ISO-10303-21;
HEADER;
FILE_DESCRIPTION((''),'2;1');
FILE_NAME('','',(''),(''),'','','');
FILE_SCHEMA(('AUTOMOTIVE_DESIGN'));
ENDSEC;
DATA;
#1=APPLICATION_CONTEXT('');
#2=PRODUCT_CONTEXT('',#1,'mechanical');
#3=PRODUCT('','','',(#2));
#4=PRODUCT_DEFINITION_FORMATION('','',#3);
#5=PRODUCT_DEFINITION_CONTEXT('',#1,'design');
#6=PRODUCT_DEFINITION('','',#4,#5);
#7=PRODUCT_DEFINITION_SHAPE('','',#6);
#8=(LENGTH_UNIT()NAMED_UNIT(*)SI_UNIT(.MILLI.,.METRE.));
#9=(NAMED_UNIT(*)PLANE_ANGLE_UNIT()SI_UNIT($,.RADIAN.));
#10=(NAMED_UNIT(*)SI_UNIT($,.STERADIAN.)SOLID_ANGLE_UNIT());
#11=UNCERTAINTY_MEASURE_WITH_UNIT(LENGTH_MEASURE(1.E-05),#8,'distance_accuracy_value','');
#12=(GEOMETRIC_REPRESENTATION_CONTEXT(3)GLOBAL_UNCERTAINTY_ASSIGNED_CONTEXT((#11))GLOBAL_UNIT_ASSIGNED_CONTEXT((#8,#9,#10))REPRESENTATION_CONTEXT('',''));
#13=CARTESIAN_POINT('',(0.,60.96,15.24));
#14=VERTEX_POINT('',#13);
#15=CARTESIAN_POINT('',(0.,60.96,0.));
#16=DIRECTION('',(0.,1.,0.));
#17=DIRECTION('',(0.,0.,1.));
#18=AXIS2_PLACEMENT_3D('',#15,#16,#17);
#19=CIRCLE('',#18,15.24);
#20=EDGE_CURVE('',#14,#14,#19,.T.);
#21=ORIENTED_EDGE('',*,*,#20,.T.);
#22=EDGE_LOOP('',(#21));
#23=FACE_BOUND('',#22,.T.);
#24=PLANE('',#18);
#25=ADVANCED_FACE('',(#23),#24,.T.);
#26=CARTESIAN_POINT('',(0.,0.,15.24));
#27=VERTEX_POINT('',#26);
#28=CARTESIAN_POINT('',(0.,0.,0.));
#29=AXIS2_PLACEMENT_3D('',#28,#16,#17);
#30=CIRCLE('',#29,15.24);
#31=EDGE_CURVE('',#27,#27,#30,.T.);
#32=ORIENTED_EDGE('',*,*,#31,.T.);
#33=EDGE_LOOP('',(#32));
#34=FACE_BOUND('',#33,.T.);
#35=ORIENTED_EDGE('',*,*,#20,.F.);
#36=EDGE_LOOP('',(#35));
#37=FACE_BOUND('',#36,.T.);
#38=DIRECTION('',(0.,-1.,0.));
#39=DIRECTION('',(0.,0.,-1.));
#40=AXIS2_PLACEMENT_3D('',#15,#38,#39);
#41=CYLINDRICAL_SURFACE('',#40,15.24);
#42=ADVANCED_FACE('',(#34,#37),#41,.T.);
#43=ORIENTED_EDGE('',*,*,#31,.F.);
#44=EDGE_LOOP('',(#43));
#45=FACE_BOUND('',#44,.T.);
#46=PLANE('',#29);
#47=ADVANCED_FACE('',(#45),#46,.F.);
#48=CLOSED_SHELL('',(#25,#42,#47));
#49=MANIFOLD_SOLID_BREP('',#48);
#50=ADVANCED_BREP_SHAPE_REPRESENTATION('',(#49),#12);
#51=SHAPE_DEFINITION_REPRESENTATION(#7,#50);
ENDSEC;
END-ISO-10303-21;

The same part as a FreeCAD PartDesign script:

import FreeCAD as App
import Part
import Sketcher
Q = App.Units.Quantity

doc = App.newDocument("Part")
body = doc.addObject("PartDesign::Body", "Body")

# Sketch on XZ plane
sketch1 = doc.addObject("Sketcher::SketchObject", "Sketch")
body.addObject(sketch1)
sketch1.AttachmentSupport = (doc.XZ_Plane, [""])
sketch1.MapMode = "FlatFace"
sketch1.addGeometry(Part.Circle(App.Vector(0, 0, 0), App.Vector(0, 0, 1), 15.24), False)
sketch1.addConstraint([
    Sketcher.Constraint("Coincident", 0, 3, -1, 1),
    Sketcher.Constraint("Diameter", 0, Q("1.2 in")),
])
pad1 = doc.addObject("PartDesign::Pad", "Pad")
body.addObject(pad1)
pad1.Profile = sketch1
pad1.Length = Q("2.4 in")
pad1.Reversed = True

doc.recompute()
